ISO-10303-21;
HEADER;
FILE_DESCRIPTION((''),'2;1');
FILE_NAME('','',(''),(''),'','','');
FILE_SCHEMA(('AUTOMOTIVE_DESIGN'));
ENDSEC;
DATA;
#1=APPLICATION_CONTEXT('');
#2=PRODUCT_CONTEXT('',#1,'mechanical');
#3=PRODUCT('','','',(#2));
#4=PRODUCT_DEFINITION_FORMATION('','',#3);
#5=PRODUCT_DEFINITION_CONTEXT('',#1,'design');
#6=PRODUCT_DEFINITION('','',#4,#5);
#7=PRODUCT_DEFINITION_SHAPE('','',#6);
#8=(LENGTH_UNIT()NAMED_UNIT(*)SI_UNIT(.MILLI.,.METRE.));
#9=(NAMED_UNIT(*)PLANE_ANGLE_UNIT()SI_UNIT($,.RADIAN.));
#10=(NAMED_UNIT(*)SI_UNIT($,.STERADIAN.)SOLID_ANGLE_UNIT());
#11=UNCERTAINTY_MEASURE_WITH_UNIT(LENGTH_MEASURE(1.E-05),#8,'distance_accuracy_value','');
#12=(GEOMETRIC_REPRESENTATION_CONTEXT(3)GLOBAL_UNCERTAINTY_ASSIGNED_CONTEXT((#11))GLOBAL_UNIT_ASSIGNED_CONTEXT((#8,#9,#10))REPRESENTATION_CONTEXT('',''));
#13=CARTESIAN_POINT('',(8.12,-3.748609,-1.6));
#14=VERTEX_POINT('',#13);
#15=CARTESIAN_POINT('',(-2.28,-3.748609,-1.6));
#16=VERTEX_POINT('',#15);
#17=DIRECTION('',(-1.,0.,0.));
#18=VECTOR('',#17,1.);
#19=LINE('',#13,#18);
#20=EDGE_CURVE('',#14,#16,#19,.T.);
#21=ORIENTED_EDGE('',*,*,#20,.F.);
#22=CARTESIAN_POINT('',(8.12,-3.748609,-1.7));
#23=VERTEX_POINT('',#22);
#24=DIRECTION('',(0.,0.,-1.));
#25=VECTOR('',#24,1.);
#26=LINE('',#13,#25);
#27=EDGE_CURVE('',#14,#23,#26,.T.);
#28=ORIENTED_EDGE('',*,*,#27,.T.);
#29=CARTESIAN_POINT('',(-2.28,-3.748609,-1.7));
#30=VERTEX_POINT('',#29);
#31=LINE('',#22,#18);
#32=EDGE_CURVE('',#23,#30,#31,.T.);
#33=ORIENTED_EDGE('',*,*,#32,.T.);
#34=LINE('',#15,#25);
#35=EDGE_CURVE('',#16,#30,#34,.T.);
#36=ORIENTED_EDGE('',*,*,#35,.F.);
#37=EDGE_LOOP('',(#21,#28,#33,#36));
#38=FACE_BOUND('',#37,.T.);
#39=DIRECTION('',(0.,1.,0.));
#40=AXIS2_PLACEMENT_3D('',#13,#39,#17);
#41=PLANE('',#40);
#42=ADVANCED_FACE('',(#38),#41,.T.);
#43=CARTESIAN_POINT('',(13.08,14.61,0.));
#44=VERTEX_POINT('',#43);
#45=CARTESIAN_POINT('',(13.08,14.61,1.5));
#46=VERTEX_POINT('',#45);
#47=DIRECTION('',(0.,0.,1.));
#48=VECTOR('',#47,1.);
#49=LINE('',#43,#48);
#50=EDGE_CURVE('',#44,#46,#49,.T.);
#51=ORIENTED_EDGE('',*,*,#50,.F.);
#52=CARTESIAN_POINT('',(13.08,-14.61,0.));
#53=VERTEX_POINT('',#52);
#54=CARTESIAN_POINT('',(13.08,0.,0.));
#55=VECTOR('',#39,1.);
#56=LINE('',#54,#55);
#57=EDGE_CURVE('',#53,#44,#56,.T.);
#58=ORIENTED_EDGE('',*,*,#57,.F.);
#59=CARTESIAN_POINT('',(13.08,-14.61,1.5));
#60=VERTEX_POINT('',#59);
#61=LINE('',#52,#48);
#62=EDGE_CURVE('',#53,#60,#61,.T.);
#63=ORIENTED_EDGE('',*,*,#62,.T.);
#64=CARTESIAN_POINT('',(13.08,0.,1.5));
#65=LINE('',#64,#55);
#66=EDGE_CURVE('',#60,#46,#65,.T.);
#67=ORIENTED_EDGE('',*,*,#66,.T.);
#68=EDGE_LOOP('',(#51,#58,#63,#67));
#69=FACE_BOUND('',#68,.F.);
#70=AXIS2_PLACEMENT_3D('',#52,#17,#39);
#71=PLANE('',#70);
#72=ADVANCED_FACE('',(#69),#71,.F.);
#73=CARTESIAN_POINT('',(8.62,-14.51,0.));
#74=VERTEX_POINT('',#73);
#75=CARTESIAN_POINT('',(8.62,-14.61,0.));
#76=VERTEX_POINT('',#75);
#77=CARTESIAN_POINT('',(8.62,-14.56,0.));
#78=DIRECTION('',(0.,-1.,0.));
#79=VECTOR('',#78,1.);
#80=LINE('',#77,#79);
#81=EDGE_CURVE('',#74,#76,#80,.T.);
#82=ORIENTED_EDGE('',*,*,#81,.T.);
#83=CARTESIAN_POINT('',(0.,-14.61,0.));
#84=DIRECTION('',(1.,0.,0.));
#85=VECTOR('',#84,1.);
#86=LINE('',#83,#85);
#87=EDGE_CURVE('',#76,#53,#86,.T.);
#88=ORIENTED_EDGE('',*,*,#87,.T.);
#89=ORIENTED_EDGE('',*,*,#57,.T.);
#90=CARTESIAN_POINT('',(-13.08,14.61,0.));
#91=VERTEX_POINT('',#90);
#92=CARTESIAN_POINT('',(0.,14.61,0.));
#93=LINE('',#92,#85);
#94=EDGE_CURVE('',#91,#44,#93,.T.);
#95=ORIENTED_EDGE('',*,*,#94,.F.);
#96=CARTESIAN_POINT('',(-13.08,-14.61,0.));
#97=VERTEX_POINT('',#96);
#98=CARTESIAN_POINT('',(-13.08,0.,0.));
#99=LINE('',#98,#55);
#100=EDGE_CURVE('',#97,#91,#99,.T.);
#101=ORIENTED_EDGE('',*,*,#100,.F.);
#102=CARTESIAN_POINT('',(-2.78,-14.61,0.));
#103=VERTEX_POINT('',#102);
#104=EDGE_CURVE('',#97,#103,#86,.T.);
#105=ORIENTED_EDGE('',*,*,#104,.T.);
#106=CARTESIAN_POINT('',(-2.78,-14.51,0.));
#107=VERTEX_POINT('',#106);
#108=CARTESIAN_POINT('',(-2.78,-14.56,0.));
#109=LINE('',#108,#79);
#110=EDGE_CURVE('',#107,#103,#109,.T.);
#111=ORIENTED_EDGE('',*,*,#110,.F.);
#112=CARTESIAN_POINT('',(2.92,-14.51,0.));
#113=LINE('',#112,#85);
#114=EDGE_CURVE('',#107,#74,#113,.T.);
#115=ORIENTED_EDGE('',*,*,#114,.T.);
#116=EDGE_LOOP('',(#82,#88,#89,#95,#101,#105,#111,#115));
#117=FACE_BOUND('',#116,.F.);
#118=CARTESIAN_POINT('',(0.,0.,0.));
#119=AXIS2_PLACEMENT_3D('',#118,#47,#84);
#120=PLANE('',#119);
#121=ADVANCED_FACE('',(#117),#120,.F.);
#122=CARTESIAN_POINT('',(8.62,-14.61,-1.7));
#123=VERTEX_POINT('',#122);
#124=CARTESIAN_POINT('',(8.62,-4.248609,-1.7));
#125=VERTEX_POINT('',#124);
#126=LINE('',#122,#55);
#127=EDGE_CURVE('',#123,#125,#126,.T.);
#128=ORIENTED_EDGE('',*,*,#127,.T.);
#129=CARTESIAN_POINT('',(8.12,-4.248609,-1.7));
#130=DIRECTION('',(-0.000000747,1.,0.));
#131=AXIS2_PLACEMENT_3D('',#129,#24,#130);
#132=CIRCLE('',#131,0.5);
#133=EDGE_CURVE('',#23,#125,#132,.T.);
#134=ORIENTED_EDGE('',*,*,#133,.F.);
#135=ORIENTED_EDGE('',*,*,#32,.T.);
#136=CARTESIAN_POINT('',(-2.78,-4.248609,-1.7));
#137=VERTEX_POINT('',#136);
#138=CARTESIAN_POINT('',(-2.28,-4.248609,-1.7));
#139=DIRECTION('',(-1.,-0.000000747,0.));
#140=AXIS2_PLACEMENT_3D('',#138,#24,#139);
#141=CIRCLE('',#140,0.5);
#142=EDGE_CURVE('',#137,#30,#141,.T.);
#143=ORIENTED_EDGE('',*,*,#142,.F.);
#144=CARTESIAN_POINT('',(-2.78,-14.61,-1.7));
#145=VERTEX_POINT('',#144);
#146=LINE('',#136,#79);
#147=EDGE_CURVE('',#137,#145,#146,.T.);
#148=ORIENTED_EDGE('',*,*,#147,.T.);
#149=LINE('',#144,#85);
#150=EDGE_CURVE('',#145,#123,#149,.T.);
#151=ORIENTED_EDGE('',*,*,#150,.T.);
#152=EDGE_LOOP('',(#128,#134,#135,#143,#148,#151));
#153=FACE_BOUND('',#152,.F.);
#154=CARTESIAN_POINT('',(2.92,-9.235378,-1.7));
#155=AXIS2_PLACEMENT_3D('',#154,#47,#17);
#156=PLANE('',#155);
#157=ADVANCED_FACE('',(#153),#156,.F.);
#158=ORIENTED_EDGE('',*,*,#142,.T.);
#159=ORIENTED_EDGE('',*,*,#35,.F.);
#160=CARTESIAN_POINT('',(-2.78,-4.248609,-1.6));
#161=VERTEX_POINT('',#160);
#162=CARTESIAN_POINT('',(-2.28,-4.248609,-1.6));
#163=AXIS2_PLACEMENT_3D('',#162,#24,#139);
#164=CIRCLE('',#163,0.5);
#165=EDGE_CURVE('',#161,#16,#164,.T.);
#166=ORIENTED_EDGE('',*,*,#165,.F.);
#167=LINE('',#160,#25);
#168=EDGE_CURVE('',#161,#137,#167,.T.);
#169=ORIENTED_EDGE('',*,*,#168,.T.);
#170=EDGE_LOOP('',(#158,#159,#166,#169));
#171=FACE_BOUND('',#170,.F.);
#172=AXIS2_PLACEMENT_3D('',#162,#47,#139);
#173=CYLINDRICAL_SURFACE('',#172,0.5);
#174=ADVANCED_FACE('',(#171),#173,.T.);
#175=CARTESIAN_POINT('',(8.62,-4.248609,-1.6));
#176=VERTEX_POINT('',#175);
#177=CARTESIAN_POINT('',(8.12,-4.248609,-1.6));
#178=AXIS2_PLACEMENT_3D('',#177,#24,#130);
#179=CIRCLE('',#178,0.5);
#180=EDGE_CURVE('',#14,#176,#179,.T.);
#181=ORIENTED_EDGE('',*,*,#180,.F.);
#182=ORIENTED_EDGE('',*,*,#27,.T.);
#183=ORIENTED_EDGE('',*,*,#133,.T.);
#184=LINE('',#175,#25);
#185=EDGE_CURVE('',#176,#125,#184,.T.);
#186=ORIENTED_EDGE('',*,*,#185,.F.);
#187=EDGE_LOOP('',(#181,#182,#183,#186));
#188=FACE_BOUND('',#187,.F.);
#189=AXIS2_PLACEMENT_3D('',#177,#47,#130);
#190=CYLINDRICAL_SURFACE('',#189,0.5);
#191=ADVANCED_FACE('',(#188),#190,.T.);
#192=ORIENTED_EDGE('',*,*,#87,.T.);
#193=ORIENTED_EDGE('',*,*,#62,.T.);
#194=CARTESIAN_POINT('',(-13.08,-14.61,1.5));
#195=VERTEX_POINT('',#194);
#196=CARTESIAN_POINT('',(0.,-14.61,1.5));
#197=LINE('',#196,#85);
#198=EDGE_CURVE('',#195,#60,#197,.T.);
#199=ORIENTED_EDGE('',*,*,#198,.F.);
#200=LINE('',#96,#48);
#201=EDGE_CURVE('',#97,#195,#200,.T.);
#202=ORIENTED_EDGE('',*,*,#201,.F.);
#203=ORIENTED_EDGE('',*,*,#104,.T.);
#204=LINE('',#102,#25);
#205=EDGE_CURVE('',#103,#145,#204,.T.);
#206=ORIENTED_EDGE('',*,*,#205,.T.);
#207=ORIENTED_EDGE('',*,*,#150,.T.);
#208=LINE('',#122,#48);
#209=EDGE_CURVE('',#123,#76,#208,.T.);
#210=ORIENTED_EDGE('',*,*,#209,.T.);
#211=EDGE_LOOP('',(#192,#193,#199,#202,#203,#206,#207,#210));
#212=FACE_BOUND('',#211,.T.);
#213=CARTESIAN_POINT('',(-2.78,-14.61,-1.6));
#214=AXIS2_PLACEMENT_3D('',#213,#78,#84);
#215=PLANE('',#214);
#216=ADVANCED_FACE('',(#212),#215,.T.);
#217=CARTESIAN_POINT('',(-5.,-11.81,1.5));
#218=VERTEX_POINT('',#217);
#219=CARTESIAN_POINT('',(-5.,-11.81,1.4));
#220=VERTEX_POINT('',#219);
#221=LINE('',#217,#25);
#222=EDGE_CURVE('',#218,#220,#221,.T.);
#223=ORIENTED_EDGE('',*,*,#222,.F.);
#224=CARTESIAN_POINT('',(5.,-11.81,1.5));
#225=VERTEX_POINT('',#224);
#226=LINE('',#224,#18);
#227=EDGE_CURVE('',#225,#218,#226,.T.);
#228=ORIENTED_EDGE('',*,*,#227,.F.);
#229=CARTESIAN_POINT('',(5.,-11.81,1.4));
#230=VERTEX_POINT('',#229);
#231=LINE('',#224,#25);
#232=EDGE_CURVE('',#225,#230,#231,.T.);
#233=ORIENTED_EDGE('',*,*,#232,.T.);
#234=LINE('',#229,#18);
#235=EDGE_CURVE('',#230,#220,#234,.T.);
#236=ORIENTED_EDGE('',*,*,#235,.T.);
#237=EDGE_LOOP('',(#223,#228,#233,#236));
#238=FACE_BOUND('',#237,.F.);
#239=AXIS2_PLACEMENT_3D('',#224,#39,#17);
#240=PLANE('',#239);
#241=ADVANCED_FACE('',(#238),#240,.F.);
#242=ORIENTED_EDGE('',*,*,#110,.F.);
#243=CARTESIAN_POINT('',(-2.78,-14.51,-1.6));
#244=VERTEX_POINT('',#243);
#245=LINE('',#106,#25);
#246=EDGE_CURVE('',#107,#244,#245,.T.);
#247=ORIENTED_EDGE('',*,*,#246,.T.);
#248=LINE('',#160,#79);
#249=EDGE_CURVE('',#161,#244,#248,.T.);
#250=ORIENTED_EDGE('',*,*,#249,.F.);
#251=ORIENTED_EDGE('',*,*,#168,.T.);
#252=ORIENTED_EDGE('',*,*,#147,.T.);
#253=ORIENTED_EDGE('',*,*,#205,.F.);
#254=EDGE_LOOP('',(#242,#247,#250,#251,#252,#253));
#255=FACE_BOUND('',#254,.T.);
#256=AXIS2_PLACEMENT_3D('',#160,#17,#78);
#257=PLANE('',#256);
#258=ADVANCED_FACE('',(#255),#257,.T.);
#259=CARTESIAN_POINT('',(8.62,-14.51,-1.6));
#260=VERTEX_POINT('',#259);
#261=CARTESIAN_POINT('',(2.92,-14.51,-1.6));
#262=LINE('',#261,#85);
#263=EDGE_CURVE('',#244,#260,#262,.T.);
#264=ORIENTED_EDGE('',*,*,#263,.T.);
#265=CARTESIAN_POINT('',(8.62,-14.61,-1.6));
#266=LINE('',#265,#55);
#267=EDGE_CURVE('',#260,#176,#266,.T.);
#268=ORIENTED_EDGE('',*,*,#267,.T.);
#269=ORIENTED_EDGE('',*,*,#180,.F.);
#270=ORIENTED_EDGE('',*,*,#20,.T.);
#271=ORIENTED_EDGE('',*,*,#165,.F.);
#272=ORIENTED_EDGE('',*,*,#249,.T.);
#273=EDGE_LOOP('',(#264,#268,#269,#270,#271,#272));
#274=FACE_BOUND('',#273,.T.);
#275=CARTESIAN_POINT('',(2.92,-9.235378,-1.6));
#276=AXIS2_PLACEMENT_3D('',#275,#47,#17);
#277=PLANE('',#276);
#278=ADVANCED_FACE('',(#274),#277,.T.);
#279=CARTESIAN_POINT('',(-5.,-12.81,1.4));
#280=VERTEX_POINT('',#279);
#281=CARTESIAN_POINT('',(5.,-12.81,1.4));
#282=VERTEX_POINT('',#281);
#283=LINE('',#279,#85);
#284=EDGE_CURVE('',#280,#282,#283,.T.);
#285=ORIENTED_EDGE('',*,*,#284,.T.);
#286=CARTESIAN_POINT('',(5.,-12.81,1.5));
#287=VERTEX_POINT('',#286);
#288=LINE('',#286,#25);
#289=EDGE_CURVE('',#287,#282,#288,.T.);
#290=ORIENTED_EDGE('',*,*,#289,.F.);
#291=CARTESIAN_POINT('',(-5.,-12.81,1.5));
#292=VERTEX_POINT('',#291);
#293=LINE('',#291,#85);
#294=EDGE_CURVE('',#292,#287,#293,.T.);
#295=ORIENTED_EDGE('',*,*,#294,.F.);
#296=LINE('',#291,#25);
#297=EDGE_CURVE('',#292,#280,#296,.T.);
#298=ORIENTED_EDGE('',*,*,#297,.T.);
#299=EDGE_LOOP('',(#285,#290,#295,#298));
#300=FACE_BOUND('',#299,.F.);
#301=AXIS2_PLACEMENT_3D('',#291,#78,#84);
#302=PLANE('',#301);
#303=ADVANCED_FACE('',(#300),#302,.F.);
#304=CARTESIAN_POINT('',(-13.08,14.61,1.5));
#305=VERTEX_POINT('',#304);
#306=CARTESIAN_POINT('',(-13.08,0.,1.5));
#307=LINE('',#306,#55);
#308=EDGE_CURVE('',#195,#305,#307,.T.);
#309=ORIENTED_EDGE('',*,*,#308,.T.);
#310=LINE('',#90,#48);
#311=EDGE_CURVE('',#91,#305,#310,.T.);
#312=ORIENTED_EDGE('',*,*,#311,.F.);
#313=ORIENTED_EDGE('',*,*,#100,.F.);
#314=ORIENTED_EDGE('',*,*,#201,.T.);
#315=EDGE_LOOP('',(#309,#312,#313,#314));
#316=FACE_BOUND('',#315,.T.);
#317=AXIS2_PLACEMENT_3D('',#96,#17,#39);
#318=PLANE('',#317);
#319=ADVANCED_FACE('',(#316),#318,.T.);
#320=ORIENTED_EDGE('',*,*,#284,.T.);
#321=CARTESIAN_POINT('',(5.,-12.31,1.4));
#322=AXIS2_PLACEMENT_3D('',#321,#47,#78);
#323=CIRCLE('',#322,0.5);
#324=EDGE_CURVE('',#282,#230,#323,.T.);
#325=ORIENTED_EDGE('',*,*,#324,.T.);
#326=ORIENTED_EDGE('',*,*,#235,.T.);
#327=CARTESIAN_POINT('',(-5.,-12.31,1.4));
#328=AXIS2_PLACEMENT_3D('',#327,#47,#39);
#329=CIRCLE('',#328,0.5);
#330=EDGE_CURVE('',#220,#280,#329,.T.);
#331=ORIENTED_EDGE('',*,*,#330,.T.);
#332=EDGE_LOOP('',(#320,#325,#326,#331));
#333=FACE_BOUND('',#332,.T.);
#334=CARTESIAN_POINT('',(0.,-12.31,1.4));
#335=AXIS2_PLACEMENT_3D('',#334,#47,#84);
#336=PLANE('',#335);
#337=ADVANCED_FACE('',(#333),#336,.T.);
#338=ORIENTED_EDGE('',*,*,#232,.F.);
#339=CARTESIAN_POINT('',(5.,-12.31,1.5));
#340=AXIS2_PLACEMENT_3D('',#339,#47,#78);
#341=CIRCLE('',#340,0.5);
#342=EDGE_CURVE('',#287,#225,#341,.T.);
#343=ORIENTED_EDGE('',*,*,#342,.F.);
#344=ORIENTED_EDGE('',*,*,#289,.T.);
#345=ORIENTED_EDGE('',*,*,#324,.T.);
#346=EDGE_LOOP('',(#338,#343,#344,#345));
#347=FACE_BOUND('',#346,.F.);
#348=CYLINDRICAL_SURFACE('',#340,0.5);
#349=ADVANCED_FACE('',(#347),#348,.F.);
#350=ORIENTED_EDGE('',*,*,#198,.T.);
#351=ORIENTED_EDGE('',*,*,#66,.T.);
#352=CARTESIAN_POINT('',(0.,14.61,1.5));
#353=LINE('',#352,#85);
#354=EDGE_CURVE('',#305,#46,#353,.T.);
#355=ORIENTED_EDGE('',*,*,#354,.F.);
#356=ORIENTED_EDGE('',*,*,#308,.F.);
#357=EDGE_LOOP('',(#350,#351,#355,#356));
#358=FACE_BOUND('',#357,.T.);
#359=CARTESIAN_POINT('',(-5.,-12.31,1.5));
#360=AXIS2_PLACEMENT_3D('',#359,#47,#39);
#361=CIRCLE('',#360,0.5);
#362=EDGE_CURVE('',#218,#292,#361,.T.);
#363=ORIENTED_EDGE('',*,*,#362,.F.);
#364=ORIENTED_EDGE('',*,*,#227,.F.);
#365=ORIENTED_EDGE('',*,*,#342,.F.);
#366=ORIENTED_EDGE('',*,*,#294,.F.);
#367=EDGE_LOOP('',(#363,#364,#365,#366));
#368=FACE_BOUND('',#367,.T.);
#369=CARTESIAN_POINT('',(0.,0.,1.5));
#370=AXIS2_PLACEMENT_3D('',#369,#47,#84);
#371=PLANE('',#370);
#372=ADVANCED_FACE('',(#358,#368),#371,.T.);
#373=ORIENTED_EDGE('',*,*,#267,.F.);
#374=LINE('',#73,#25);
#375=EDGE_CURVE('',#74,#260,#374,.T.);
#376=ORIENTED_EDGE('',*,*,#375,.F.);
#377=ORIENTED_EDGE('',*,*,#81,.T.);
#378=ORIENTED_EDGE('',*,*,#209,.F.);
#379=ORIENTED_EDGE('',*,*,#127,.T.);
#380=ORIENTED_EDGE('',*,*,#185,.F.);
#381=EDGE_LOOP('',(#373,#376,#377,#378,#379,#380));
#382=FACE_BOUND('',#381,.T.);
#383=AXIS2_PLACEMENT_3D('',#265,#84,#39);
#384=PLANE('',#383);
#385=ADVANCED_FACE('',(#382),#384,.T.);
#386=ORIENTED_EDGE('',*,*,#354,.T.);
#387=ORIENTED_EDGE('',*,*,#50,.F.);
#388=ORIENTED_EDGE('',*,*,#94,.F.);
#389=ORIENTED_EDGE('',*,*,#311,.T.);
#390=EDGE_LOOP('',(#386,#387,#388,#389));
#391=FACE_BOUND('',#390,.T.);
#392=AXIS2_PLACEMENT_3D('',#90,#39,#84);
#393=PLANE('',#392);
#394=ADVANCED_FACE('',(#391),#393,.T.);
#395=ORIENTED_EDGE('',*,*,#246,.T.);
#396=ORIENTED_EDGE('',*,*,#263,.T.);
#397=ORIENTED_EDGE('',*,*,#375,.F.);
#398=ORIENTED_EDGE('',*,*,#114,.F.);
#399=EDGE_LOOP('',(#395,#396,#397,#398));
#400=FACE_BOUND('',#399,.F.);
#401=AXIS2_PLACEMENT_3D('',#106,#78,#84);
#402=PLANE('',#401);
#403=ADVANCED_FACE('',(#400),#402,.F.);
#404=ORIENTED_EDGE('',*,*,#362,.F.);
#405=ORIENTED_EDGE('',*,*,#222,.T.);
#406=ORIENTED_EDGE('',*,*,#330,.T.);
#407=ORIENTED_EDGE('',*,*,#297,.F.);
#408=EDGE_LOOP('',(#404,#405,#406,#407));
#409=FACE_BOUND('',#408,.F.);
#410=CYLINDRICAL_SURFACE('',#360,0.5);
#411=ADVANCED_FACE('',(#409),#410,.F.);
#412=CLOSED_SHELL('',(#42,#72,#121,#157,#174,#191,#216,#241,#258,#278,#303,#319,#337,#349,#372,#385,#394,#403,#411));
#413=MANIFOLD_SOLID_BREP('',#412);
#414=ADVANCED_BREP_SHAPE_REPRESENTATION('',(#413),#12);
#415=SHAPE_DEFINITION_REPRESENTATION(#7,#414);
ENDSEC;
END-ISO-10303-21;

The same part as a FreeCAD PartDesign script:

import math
import FreeCAD as App
import Part
import Sketcher

doc = App.newDocument("Part")
body = doc.addObject("PartDesign::Body", "Body")

# Sketch on XY plane
sketch1 = body.newObject("Sketcher::SketchObject", "Sketch")
sketch1.AttachmentSupport = (doc.getObject("XY_Plane"), [""])
sketch1.MapMode = "FlatFace"
sketch1.addGeometry([
    Part.LineSegment(App.Vector(-13, 15, 0), App.Vector(-13, -15, 0)),
    Part.LineSegment(App.Vector(-13, -15, 0), App.Vector(13, -15, 0)),
    Part.LineSegment(App.Vector(13, -15, 0), App.Vector(13, 15, 0)),
    Part.LineSegment(App.Vector(13, 15, 0), App.Vector(-13, 15, 0)),
], False)
sketch1.addConstraint([
    Sketcher.Constraint("Coincident", 0, 2, 1, 1),
    Sketcher.Constraint("Coincident", 1, 2, 2, 1),
    Sketcher.Constraint("Coincident", 2, 2, 3, 1),
    Sketcher.Constraint("Coincident", 3, 2, 0, 1),
    Sketcher.Constraint("Vertical", 0),
    Sketcher.Constraint("Horizontal", 1),
    Sketcher.Constraint("Vertical", 2),
    Sketcher.Constraint("Horizontal", 3),
    Sketcher.Constraint("Symmetric", 0, 2, 2, 2, -1, 1),
    Sketcher.Constraint("DistanceX", 1, 1, 1, 2, 26.16),
    Sketcher.Constraint("DistanceY", 0, 2, 0, 1, 29.22),
])
pad1 = body.newObject("PartDesign::Pad", "Pad")
pad1.Profile = sketch1
pad1.Length = 1.5

# Sketch on XY plane
sketch2 = body.newObject("Sketcher::SketchObject", "Sketch001")
sketch2.AttachmentSupport = (doc.getObject("XY_Plane"), [""])
sketch2.MapMode = "FlatFace"
sketch2.AttachmentOffset = App.Placement(App.Vector(0, 0, 1.5), App.Rotation())
sketch2.addGeometry([
    Part.LineSegment(App.Vector(-12, 14, 0), App.Vector(-12, -10, 0)),
    Part.LineSegment(App.Vector(-12, -10, 0), App.Vector(12, -10, 0)),
    Part.LineSegment(App.Vector(12, -10, 0), App.Vector(12, 14, 0)),
    Part.LineSegment(App.Vector(12, 14, 0), App.Vector(-12, 14, 0)),
], False)
sketch2.addConstraint([
    Sketcher.Constraint("Coincident", 0, 2, 1, 1),
    Sketcher.Constraint("Coincident", 1, 2, 2, 1),
    Sketcher.Constraint("Coincident", 2, 2, 3, 1),
    Sketcher.Constraint("Coincident", 3, 2, 0, 1),
    Sketcher.Constraint("Vertical", 0),
    Sketcher.Constraint("Horizontal", 1),
    Sketcher.Constraint("Vertical", 2),
    Sketcher.Constraint("Horizontal", 3),
    Sketcher.Constraint("Equal", 3, 0),
    Sketcher.Constraint("DistanceX", 1, 1, 1, 2, 23.4),
    Sketcher.Constraint("DistanceX", 0, 2, -1, 1, 11.7),
    Sketcher.Constraint("DistanceY", 0, 2, -1, 1, 9.79),
])
pad2 = body.newObject("PartDesign::Pad", "Pad001")
pad2.Profile = sketch2
pad2.Length = 1
pad2.Reversed = True

# Sketch on XY plane
sketch3 = body.newObject("Sketcher::SketchObject", "Sketch002")
sketch3.AttachmentSupport = (doc.getObject("XY_Plane"), [""])
sketch3.MapMode = "FlatFace"
sketch3.addGeometry([
    Part.LineSegment(App.Vector(-2.78, -14.61, 0), App.Vector(-2.78, -14.51, 0)),
    Part.LineSegment(App.Vector(-2.78, -14.51, 0), App.Vector(8.62, -14.51, 0)),
    Part.LineSegment(App.Vector(8.62, -14.51, 0), App.Vector(8.62, -14.61, 0)),
    Part.LineSegment(App.Vector(8.62, -14.61, 0), App.Vector(-2.78, -14.61, 0)),
], False)
sketch3.addConstraint([
    Sketcher.Constraint("Coincident", 0, 2, 1, 1),
    Sketcher.Constraint("Coincident", 1, 2, 2, 1),
    Sketcher.Constraint("Coincident", 2, 2, 3, 1),
    Sketcher.Constraint("Coincident", 3, 2, 0, 1),
    Sketcher.Constraint("Vertical", 0),
    Sketcher.Constraint("Horizontal", 1),
    Sketcher.Constraint("Vertical", 2),
    Sketcher.Constraint("Horizontal", 3),
    Sketcher.Constraint("DistanceX", 1, 1, 1, 2, 11.4),
    Sketcher.Constraint("DistanceY", 0, 1, 0, 2, 0.1),
    Sketcher.Constraint("DistanceX", 0, 2, -1, 1, 2.78),
    Sketcher.Constraint("DistanceY", 0, 2, -1, 1, 14.51),
])
pad3 = body.newObject("PartDesign::Pad", "Pad002")
pad3.Profile = sketch3
pad3.Length = 1.6
pad3.Reversed = True

# Sketch on XY plane
sketch4 = body.newObject("Sketcher::SketchObject", "Sketch003")
sketch4.AttachmentSupport = (doc.getObject("XY_Plane"), [""])
sketch4.MapMode = "FlatFace"
sketch4.AttachmentOffset = App.Placement(App.Vector(0, 0, -1.6), App.Rotation())
sketch4.addGeometry([
    Part.LineSegment(App.Vector(8.62, -14.61, 0), App.Vector(-2.78, -14.61, 0)),  # 0
    Part.LineSegment(App.Vector(-2.78, -14.61, 0), App.Vector(-2.78, -4.25, 0)),  # 1
    Part.ArcOfCircle(Part.Circle(App.Vector(-2.28, -4.25, 0), App.Vector(0, 0, 1), 0.5), math.radians(90), math.radians(180)),  # 2
    Part.LineSegment(App.Vector(-2.28, -3.75, 0), App.Vector(8.12, -3.75, 0)),  # 3
    Part.ArcOfCircle(Part.Circle(App.Vector(8.12, -4.25, 0), App.Vector(0, 0, 1), 0.5), math.radians(0), math.radians(90)),  # 4
    Part.LineSegment(App.Vector(8.62, -4.25, 0), App.Vector(8.62, -14.61, 0)),  # 5
], False)
sketch4.addConstraint([
    Sketcher.Constraint("Coincident", 0, 2, 1, 1),
    Sketcher.Constraint("Tangent", 1, 2, 2, 2),
    Sketcher.Constraint("Tangent", 2, 1, 3, 1),
    Sketcher.Constraint("Tangent", 3, 2, 4, 2),
    Sketcher.Constraint("Tangent", 4, 1, 5, 1),
    Sketcher.Constraint("Coincident", 5, 2, 0, 1),
    Sketcher.Constraint("Horizontal", 0),
    Sketcher.Constraint("Vertical", 1),
    Sketcher.Constraint("Horizontal", 3),
    Sketcher.Constraint("Vertical", 5),
    Sketcher.Constraint("Equal", 2, 4),
    Sketcher.Constraint("Radius", 2, 0.5),
    Sketcher.Constraint("DistanceX", 0, 2, 0, 1, 11.4),
    Sketcher.Constraint("DistanceX", 2, 3, -1, 1, 2.28),
    Sketcher.Constraint("DistanceY", 0, 2, -1, 1, 14.61),
    Sketcher.Constraint("DistanceY", 1, 1, 1, 2, 10.361391),
])
pad4 = body.newObject("PartDesign::Pad", "Pad003")
pad4.Profile = sketch4
pad4.Length = 0.1
pad4.Reversed = True

# Sketch on XY plane
sketch5 = body.newObject("Sketcher::SketchObject", "Sketch004")
sketch5.AttachmentSupport = (doc.getObject("XY_Plane"), [""])
sketch5.MapMode = "FlatFace"
sketch5.AttachmentOffset = App.Placement(App.Vector(0, 0, 1.5), App.Rotation())
sketch5.addGeometry([
    Part.ArcOfCircle(Part.Circle(App.Vector(-5, -12.3, 0), App.Vector(0, 0, 1), 0.5), math.radians(90), math.radians(270)),
    Part.LineSegment(App.Vector(-5, -12.8, 0), App.Vector(5, -12.8, 0)),
    Part.ArcOfCircle(Part.Circle(App.Vector(5, -12.3, 0), App.Vector(0, 0, 1), 0.5), math.radians(-90), math.radians(90)),
    Part.LineSegment(App.Vector(5, -11.8, 0), App.Vector(-5, -11.8, 0)),
], False)
sketch5.addConstraint([
    Sketcher.Constraint("Tangent", 0, 2, 1, 1),
    Sketcher.Constraint("Tangent", 1, 2, 2, 1),
    Sketcher.Constraint("Tangent", 2, 2, 3, 1),
    Sketcher.Constraint("Tangent", 3, 2, 0, 1),
    Sketcher.Constraint("Horizontal", 1),
    Sketcher.Constraint("Horizontal", 3),
    Sketcher.Constraint("Radius", 0, 0.5),
    Sketcher.Constraint("DistanceX", 1, 1, 1, 2, 10.0),
    Sketcher.Constraint("DistanceX", 0, 3, -1, 1, 5.0),
    Sketcher.Constraint("DistanceY", 0, 3, -1, 1, 12.31),
])
pocket1 = body.newObject("PartDesign::Pocket", "Pocket")
pocket1.Profile = sketch5
pocket1.Length = 0.1

doc.recompute()
